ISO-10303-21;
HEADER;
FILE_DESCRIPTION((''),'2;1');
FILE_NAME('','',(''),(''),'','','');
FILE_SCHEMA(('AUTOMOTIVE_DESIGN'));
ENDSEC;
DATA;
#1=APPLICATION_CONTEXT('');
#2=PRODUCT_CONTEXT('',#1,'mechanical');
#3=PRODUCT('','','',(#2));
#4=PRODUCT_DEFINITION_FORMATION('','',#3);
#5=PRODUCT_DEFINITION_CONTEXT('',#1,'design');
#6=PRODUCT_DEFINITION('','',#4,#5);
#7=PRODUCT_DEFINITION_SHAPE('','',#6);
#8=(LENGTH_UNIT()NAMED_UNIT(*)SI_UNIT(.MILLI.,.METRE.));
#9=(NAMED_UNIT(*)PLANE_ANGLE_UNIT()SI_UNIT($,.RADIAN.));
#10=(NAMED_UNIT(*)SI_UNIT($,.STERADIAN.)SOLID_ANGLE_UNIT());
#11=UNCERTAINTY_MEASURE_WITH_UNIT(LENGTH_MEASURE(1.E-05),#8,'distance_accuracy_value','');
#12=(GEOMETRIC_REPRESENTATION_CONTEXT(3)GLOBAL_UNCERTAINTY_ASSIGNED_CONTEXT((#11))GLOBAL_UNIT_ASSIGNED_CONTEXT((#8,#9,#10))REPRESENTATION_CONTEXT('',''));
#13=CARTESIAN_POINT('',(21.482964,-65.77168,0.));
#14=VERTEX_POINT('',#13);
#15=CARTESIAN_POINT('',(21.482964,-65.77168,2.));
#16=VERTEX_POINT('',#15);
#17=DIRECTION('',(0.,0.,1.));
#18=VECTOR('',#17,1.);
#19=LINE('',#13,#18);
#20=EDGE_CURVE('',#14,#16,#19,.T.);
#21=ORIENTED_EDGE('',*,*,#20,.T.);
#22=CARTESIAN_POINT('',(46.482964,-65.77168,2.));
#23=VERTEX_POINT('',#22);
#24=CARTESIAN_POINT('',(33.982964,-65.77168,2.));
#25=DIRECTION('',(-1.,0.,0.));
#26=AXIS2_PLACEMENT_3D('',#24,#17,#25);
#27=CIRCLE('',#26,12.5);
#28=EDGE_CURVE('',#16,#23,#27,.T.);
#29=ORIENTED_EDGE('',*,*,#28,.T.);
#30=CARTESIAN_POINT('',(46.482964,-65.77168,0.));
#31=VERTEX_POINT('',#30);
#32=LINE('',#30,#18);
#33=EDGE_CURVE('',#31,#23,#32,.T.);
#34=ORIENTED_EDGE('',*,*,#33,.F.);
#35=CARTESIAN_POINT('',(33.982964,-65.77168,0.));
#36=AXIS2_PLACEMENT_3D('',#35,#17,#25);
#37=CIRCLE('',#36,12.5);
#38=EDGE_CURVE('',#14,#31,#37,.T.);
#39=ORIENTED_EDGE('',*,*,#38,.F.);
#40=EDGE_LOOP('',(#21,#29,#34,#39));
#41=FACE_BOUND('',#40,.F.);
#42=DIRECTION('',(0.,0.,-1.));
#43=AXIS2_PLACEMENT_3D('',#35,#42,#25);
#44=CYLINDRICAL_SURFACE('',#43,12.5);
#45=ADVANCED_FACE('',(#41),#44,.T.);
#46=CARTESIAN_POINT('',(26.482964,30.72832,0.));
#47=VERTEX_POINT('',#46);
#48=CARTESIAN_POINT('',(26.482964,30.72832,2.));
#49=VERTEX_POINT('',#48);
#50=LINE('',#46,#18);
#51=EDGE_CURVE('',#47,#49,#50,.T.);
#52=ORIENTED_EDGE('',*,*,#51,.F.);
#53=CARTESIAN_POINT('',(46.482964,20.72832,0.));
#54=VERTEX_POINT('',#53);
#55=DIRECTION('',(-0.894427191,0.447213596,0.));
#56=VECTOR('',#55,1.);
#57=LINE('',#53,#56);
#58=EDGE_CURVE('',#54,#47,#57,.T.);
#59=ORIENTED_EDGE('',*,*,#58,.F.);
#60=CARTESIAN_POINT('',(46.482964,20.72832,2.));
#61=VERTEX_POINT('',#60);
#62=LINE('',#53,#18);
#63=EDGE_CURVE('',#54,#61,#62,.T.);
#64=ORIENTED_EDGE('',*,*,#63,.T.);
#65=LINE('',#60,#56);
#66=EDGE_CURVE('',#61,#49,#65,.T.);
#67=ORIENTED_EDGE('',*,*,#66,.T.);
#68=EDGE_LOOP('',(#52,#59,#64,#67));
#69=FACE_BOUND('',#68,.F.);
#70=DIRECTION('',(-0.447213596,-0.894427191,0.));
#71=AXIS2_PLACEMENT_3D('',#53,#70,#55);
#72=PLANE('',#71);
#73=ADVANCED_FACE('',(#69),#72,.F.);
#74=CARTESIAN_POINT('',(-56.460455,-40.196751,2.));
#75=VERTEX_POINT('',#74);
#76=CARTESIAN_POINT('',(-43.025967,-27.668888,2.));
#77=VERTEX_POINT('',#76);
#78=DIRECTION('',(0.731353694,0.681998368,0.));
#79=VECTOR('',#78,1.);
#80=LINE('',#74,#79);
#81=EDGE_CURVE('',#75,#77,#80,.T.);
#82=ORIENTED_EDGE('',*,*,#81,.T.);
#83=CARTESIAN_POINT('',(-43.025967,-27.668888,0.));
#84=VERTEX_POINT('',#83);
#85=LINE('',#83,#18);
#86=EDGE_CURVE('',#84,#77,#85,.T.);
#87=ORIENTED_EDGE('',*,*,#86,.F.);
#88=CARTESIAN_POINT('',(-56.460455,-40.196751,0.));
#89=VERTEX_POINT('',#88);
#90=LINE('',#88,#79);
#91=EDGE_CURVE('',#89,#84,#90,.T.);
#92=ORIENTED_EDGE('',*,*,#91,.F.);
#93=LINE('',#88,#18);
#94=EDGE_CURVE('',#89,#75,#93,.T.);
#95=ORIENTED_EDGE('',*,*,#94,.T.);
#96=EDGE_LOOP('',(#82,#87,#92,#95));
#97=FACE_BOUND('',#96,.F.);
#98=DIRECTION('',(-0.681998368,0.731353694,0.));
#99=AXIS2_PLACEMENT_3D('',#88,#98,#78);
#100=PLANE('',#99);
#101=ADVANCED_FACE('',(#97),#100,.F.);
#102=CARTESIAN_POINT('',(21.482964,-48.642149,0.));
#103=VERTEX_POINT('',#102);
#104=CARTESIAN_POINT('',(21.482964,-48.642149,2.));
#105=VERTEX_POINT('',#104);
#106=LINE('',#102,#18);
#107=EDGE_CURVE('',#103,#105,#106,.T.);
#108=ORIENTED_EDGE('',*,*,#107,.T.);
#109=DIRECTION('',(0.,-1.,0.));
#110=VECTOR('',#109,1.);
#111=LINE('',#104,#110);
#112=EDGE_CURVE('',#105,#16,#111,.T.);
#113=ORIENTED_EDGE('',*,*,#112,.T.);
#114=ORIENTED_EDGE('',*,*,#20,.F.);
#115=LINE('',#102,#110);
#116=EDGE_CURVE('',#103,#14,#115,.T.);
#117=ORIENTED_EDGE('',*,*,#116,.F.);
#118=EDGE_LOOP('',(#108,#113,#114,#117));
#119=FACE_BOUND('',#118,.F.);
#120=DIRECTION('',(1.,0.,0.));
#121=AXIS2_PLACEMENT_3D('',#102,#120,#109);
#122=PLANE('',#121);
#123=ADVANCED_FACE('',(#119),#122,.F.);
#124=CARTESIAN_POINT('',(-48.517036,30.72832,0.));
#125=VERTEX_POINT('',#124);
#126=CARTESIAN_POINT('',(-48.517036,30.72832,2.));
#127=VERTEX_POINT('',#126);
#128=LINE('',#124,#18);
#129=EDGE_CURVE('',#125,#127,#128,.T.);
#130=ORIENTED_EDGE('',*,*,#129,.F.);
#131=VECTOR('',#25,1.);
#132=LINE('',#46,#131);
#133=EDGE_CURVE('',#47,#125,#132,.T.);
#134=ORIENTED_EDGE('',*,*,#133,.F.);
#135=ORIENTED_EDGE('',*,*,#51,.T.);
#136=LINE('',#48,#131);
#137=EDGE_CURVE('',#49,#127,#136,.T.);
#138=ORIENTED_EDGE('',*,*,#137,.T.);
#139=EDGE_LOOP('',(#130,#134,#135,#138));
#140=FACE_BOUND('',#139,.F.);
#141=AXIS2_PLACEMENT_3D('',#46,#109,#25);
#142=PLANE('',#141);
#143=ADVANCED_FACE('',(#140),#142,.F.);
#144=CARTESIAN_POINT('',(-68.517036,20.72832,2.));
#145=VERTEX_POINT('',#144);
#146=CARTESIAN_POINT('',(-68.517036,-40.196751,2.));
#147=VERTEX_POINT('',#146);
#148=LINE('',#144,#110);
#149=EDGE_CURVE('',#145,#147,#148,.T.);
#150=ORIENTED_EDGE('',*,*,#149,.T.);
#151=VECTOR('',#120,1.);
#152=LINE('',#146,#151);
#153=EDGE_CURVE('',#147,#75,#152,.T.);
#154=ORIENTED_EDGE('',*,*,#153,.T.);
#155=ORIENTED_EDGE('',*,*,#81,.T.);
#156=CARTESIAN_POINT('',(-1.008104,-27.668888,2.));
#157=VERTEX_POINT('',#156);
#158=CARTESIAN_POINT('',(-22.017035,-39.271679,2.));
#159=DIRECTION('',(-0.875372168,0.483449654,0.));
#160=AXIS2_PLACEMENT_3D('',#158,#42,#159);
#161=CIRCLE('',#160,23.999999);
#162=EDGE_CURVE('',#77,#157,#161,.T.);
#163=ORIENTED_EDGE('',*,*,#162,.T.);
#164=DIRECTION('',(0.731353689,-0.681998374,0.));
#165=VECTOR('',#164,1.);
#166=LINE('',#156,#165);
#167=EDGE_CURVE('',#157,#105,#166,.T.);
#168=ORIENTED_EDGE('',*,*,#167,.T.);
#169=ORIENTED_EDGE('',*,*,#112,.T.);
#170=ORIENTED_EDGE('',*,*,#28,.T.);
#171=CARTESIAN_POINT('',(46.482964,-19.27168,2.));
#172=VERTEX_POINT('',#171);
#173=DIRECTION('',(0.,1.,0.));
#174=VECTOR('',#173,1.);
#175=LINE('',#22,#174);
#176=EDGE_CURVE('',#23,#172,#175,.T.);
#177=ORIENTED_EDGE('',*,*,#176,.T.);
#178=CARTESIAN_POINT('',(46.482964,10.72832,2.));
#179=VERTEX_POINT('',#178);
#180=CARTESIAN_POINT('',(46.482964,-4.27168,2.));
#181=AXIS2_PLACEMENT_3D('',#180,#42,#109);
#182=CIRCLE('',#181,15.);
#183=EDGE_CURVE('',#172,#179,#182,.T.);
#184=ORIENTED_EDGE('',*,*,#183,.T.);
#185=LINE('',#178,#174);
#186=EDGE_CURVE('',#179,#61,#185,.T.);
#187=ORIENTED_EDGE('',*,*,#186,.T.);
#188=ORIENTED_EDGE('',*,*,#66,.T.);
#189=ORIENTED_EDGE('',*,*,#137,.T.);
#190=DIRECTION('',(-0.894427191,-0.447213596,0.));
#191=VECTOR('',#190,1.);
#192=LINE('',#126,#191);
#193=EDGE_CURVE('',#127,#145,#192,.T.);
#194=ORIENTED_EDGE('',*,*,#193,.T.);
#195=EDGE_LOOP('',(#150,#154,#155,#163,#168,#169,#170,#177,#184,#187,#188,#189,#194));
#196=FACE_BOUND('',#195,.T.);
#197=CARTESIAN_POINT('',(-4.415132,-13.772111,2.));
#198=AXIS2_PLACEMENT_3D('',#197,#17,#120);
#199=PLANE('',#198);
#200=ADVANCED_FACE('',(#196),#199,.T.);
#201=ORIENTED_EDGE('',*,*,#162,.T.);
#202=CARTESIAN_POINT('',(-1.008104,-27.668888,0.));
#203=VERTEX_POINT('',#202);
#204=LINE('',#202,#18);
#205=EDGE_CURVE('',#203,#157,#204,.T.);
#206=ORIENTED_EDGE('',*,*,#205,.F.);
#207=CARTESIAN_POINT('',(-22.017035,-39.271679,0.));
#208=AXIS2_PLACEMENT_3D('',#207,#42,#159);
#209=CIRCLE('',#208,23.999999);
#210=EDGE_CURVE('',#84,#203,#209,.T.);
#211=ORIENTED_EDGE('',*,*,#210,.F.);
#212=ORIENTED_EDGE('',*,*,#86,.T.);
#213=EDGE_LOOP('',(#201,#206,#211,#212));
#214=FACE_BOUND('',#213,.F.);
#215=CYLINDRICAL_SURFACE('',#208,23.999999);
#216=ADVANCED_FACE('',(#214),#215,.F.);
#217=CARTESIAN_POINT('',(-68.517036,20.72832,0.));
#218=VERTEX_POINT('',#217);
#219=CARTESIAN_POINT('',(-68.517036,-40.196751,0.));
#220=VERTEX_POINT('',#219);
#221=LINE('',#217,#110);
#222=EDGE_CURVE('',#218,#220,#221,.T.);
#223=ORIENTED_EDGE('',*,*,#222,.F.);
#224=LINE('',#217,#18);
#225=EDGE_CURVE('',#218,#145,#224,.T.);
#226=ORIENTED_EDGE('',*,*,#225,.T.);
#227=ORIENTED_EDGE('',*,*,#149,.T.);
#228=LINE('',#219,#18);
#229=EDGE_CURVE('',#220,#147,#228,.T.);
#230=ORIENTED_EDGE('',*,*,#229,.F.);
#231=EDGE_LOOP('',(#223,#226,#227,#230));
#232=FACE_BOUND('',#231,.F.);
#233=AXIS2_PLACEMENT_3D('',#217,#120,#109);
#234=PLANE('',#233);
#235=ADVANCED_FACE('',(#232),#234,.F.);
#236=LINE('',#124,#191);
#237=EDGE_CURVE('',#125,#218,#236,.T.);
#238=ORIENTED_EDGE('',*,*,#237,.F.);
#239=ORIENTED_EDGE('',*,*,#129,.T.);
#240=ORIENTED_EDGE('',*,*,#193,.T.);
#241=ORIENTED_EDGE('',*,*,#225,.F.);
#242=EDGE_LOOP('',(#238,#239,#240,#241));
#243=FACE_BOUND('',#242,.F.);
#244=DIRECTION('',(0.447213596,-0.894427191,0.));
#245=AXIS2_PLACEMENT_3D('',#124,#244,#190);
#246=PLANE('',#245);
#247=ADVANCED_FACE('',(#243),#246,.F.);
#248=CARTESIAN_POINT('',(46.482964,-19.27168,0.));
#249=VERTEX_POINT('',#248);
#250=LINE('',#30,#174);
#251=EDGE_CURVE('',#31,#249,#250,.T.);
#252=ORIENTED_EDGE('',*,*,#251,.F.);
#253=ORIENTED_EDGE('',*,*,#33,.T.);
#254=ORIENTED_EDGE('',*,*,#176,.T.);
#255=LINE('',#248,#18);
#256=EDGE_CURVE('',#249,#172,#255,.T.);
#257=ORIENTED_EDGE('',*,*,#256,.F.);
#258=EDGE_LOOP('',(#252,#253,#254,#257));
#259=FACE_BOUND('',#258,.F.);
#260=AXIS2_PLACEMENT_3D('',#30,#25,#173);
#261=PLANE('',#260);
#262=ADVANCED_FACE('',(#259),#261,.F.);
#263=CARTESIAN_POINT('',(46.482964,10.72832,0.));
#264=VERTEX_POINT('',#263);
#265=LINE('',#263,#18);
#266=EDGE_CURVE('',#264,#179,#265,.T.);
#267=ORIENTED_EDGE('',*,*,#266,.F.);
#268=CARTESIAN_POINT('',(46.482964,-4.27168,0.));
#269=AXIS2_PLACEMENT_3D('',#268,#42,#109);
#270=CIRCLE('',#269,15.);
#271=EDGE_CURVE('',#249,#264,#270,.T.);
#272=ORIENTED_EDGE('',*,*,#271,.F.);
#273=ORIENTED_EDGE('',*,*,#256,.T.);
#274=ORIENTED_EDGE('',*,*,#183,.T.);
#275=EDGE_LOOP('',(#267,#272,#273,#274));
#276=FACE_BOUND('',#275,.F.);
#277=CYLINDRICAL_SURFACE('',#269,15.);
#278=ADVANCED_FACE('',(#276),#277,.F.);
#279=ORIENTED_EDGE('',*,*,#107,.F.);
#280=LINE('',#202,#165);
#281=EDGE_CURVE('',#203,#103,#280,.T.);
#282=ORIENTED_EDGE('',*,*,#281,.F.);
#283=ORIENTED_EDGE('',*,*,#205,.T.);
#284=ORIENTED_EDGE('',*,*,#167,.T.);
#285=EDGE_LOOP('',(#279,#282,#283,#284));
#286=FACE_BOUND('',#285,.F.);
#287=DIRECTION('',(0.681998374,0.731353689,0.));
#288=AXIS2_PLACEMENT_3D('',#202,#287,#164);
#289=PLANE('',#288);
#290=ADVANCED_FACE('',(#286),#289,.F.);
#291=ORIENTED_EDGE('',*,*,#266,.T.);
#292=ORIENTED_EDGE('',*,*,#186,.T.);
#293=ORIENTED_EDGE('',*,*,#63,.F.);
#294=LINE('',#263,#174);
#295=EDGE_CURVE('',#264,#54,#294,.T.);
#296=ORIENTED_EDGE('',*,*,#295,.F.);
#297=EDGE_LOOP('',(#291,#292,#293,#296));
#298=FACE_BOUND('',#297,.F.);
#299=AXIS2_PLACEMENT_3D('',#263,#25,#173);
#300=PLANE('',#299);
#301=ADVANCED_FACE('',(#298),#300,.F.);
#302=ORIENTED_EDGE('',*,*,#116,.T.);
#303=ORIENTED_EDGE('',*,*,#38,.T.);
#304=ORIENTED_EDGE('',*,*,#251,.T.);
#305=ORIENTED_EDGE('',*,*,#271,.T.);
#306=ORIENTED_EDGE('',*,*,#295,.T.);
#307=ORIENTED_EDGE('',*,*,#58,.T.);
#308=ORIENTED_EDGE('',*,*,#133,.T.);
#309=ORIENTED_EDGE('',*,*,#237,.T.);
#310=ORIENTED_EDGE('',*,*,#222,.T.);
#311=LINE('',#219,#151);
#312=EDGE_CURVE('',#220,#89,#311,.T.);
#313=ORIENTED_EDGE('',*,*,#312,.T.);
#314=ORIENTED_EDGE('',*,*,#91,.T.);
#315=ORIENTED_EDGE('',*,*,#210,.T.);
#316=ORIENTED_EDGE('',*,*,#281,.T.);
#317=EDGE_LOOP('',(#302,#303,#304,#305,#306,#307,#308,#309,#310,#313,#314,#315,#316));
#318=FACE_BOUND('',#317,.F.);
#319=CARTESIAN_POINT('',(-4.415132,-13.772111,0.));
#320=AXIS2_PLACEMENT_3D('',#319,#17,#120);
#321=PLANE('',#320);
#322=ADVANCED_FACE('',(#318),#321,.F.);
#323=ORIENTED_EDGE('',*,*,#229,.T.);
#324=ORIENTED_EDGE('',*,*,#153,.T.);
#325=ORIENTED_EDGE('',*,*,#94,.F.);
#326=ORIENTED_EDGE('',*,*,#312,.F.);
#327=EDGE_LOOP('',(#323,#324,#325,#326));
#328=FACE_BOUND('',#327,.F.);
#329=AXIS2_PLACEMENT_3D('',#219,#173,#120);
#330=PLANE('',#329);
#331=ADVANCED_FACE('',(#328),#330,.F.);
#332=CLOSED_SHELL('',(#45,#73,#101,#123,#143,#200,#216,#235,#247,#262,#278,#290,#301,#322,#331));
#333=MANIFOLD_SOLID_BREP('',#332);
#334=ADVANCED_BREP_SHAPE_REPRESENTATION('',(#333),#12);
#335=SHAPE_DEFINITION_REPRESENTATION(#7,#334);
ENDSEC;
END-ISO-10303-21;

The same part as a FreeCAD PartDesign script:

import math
import FreeCAD as App
import Part
import Sketcher

V = App.Vector
Q = App.Units.Quantity

doc = App.newDocument("Part")
body = doc.addObject("PartDesign::Body", "Body")

sketch1 = body.newObject("Sketcher::SketchObject", "Sketch")
sketch1.AttachmentSupport = (doc.getObject("XY_Plane"), [""])
sketch1.MapMode = "FlatFace"
sketch1.addGeometry([
    Part.LineSegment(V(26, 31, 0), V(-49, 31, 0)),
    Part.LineSegment(V(-49, 31, 0), V(-69, 21, 0)),
    Part.LineSegment(V(-69, 21, 0), V(-69, -40, 0)),
    Part.LineSegment(V(-69, -40, 0), V(-56, -40, 0)),
    Part.LineSegment(V(-56, -40, 0), V(-43, -28, 0)),
    Part.ArcOfCircle(Part.Circle(V(-22, -39, 0), V(0, 0, 1), 24), math.radians(29), math.radians(151)),
    Part.LineSegment(V(-1, -28, 0), V(21, -49, 0)),
    Part.LineSegment(V(21, -49, 0), V(21, -66, 0)),
    Part.ArcOfCircle(Part.Circle(V(34, -66, 0), V(0, 0, 1), 12), math.radians(180), math.radians(360)),
    Part.LineSegment(V(46, -66, 0), V(46, -19, 0)),
    Part.ArcOfCircle(Part.Circle(V(46, -4, 0), V(0, 0, 1), 15), math.radians(90), math.radians(270)),
    Part.LineSegment(V(46, 11, 0), V(46, 21, 0)),
    Part.LineSegment(V(46, 21, 0), V(26, 31, 0)),
], False)
sketch1.addConstraint([
    Sketcher.Constraint("Coincident", 0, 2, 1, 1),
    Sketcher.Constraint("Coincident", 1, 2, 2, 1),
    Sketcher.Constraint("Coincident", 2, 2, 3, 1),
    Sketcher.Constraint("Coincident", 3, 2, 4, 1),
    Sketcher.Constraint("Coincident", 4, 2, 5, 2),
    Sketcher.Constraint("Coincident", 5, 1, 6, 1),
    Sketcher.Constraint("Coincident", 6, 2, 7, 1),
    Sketcher.Constraint("Tangent", 7, 2, 8, 1),
    Sketcher.Constraint("Tangent", 8, 2, 9, 1),
    Sketcher.Constraint("Coincident", 9, 2, 10, 2),
    Sketcher.Constraint("Coincident", 10, 1, 11, 1),
    Sketcher.Constraint("Coincident", 11, 2, 12, 1),
    Sketcher.Constraint("Coincident", 12, 2, 0, 1),
    Sketcher.Constraint("Horizontal", 0),
    Sketcher.Constraint("Vertical", 2),
    Sketcher.Constraint("Horizontal", 3),
    Sketcher.Constraint("Vertical", 7),
    Sketcher.Constraint("Vertical", 9),
    Sketcher.Constraint("Vertical", 11),
    Sketcher.Constraint("Horizontal", 4, 2, 5, 1),
    Sketcher.Constraint("Horizontal", 1, 2, 11, 2),
    Sketcher.Constraint("Vertical", 10, 3, 8, 2),
    Sketcher.Constraint("Vertical", 9, 2, 10, 1),
    Sketcher.Constraint("Equal", 1, 12),
    Sketcher.Constraint("Radius", 5, 23.999999),
    Sketcher.Constraint("Radius", 10, 15.0),
    Sketcher.Constraint("Radius", 8, 12.5),
    Sketcher.Constraint("DistanceX", 0, 2, 0, 1, 75.0),
    Sketcher.Constraint("DistanceY", 11, 1, 11, 2, 10.0),
    Sketcher.Constraint("Angle", 4, Q("43.000001 deg")),
    Sketcher.Constraint("Angle", 6, Q("-43.000001 deg")),
    Sketcher.Constraint("DistanceY", 9, 1, 9, 2, 46.5),
    Sketcher.Constraint("DistanceX", 5, 3, 8, 3, 56.0),
    Sketcher.Constraint("DistanceY", 5, 3, 10, 3, 34.999999),
    Sketcher.Constraint("DistanceY", 5, 3, 0, 2, 69.999999),
    Sketcher.Constraint("DistanceX", 0, 2, 10, 3, 95.0),
    Sketcher.Constraint("DistanceX", 3, 1, 3, 2, 12.056581),
    Sketcher.Constraint("DistanceY", 2, 2, 2, 1, 60.925071),
    Sketcher.Constraint("DistanceY", 5, 3, -1, 1, 39.271679),
    Sketcher.Constraint("DistanceX", 5, 3, -1, 1, 22.017035),
])
pad1 = body.newObject("PartDesign::Pad", "Pad")
pad1.Profile = sketch1
pad1.Length = 2

doc.recompute()
